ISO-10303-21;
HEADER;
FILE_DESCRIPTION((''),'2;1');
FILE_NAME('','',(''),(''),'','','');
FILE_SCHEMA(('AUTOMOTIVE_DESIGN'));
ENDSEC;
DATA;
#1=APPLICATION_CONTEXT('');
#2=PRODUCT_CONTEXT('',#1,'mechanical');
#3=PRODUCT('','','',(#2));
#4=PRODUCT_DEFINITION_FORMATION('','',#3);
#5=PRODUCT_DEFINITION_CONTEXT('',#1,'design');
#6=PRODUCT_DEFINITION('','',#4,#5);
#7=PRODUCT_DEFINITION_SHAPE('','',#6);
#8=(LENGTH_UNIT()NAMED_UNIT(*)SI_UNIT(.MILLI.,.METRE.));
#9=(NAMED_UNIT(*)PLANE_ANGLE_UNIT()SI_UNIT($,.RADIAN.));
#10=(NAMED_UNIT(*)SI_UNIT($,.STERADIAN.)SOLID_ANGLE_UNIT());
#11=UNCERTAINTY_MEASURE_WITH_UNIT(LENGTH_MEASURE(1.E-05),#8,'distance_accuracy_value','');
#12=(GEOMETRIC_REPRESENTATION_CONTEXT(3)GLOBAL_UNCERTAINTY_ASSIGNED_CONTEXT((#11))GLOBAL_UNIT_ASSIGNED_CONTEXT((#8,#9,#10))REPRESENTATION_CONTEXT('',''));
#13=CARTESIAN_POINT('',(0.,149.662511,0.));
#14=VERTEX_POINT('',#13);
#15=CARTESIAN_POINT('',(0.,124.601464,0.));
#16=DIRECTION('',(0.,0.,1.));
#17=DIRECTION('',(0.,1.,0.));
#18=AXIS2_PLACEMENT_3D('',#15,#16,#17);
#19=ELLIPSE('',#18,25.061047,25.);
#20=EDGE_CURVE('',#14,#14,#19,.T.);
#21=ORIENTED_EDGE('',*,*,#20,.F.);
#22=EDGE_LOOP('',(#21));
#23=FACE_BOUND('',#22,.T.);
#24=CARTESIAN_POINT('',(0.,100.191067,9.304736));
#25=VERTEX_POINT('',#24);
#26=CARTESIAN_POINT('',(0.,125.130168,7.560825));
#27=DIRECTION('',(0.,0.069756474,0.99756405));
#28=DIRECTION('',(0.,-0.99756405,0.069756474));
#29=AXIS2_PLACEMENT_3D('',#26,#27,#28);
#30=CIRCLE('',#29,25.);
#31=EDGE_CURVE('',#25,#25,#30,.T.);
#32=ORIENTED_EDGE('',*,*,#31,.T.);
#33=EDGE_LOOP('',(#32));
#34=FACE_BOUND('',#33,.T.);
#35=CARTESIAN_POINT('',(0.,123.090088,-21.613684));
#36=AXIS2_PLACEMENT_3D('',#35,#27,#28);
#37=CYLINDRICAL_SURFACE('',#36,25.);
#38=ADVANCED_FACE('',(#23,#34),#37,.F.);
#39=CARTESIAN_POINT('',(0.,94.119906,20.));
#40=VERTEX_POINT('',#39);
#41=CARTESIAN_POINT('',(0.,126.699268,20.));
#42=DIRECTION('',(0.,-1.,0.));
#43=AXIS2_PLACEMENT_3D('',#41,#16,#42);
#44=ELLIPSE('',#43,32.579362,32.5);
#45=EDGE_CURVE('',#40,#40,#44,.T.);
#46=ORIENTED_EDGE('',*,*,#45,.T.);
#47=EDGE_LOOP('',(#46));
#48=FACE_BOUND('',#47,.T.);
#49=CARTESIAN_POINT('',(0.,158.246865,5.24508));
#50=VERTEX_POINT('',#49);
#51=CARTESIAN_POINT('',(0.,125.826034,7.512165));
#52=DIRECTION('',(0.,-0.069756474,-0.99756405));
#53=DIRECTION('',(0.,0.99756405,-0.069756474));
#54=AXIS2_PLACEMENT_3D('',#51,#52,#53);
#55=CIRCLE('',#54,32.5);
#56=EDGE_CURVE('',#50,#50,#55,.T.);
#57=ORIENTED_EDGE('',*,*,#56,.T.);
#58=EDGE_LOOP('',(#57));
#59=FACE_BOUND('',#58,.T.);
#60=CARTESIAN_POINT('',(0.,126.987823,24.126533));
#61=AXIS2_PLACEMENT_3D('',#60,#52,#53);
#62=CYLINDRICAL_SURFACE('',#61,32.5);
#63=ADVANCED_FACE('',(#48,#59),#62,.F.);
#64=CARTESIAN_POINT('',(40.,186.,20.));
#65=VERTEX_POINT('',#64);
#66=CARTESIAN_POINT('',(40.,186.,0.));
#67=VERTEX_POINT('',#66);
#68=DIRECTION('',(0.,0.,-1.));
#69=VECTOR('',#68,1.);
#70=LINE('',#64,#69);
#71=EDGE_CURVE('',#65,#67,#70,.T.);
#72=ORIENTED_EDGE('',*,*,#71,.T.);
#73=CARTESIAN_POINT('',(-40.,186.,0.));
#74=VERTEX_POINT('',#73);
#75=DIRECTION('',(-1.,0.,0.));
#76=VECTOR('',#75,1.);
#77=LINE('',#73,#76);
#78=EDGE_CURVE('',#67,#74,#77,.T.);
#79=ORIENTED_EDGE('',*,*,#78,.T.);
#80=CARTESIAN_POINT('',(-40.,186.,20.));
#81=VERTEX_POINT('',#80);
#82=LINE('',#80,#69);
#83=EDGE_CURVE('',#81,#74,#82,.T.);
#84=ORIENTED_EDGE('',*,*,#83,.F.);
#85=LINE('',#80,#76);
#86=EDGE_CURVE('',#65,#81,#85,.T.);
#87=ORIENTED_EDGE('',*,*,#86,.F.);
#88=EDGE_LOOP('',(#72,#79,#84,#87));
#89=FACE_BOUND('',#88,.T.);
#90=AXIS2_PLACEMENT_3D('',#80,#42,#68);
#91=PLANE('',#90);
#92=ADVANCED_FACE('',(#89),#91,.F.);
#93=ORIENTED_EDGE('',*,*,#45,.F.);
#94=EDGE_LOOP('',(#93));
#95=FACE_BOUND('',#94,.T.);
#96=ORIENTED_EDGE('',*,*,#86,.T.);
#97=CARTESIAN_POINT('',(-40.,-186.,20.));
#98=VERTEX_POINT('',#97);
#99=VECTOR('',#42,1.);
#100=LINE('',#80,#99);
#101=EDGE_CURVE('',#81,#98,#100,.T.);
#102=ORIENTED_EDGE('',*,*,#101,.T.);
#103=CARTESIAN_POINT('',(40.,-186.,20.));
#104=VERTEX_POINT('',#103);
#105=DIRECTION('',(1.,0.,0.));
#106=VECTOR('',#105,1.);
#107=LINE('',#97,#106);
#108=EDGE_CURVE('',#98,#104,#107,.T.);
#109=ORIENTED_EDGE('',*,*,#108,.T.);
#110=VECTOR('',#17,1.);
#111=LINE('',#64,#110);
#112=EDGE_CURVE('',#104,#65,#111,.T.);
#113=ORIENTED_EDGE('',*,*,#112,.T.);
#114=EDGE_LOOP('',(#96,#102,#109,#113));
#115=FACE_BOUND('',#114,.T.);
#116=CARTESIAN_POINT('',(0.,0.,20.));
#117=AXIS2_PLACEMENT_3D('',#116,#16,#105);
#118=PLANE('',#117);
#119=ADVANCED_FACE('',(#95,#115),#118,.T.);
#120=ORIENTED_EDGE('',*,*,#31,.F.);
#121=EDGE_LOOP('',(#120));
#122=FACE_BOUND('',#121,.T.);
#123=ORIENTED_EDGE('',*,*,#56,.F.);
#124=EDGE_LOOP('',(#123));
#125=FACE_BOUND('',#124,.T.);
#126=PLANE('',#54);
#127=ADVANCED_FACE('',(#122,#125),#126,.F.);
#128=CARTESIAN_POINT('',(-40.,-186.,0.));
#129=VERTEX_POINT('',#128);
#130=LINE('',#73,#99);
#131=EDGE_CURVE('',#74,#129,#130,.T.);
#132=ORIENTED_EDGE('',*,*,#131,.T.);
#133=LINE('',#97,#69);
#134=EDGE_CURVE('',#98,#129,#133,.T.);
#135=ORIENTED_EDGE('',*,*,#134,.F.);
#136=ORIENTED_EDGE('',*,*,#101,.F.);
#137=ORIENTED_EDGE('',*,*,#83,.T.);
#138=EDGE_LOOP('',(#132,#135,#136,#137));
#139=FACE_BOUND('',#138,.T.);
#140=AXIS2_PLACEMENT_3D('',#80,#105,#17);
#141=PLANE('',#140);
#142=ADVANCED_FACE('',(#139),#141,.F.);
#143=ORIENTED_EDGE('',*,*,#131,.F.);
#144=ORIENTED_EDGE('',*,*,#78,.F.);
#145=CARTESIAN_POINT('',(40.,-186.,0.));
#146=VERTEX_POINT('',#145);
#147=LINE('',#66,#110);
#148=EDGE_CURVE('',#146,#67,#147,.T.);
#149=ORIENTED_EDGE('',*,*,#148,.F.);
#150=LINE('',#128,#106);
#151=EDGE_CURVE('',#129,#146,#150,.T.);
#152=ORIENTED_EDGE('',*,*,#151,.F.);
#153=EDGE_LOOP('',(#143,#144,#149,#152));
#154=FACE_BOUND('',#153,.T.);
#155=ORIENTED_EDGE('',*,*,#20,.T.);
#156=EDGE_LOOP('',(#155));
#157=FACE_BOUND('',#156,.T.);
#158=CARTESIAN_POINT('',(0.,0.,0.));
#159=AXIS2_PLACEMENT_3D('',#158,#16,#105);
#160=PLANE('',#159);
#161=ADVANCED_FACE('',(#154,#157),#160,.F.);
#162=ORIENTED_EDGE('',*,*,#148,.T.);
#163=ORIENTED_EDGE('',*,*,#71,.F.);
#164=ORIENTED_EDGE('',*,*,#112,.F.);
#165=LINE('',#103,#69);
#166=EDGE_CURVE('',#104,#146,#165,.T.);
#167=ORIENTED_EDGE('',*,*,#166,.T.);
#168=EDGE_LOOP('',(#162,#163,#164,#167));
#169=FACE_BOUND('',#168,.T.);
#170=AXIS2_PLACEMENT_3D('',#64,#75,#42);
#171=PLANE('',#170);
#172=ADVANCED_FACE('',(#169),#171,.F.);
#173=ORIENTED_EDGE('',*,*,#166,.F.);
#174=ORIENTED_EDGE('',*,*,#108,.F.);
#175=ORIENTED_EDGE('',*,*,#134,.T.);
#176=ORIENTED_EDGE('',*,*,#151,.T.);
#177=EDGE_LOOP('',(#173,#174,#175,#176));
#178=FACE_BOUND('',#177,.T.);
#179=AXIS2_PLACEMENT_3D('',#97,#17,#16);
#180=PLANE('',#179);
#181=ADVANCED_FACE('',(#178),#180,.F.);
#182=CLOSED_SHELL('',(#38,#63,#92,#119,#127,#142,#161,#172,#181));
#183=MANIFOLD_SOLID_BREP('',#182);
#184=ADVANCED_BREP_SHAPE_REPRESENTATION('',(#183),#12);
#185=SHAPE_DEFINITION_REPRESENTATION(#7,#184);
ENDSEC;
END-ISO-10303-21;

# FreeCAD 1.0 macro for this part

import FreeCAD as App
import Part
import Sketcher
from FreeCAD import Vector
Q = App.Units.Quantity


def add_polygon(sketch, points):
    """Adds a closed chain of lines whose ends are joined by coincident constraints."""
    first, n = sketch.GeometryCount, len(points)
    for a, b in zip(points, points[1:] + points[:1]):
        sketch.addGeometry(Part.LineSegment(App.Vector(*a, 0), App.Vector(*b, 0)), False)
    for i in range(n):
        sketch.addConstraint(Sketcher.Constraint("Coincident", first + i, 2, first + (i + 1) % n, 1))

doc = App.newDocument("Part")
params = doc.addObject("Spreadsheet::Sheet", "Params")
for row, (alias, value) in enumerate([
    ("sketch1_width", "80 mm"),
    ("sketch1_height", "372 mm"),
    ("pad1_length", "20 mm"),
    ("sketch2_diameter", "65 mm"),
    ("sketch3_diameter", "50 mm"),
], start=1):
    params.set(f"A{row}", alias)
    params.set(f"B{row}", "=" + value)
    params.setAlias(f"B{row}", alias)

body = doc.addObject("PartDesign::Body", "Body")

sketch1 = doc.addObject("Sketcher::SketchObject", "Sketch")
body.addObject(sketch1)
sketch1.AttachmentSupport = (doc.XY_Plane, [""])
sketch1.MapMode = "FlatFace"
add_polygon(sketch1, [(-40, 186), (-40, -186), (40, -186), (40, 186)])
sketch1.addConstraint([
    Sketcher.Constraint("Vertical", 0),
    Sketcher.Constraint("Horizontal", 1),
    Sketcher.Constraint("Vertical", 2),
    Sketcher.Constraint("Horizontal", 3),
    Sketcher.Constraint("Symmetric", 0, 2, 2, 2, -1, 1),
    Sketcher.Constraint("DistanceX", 1, 1, 1, 2, Q("80 mm")),
    Sketcher.Constraint("DistanceY", 0, 2, 0, 1, Q("372 mm")),
])
sketch1.setExpression("Constraints[9]", "Params.sketch1_width")
sketch1.setExpression("Constraints[10]", "Params.sketch1_height")
pad1 = doc.addObject("PartDesign::Pad", "Pad")
body.addObject(pad1)
pad1.Profile = sketch1
pad1.setExpression("Length", "Params.pad1_length")

sketch2 = doc.addObject("Sketcher::SketchObject", "Sketch001")
body.addObject(sketch2)
sketch2.Placement = App.Placement(Vector(0, 1.135011, 16.231411), App.Rotation(Vector(1, 0, 0), Vector(0, -0.99756405, 0.069756474), Vector(0, -0.069756474, -0.99756405), "ZXY"))
sketch2.addGeometry(Part.Circle(Vector(0, -125, 0), Vector(0, 0, 1), 32), False)
sketch2.addConstraint([
    Sketcher.Constraint("PointOnObject", 0, 3, -2),
    Sketcher.Constraint("Diameter", 0, Q("65 mm")),
    Sketcher.Constraint("DistanceY", 0, 3, -1, 1, Q("124.995506 mm")),
])
sketch2.setExpression("Constraints[1]", "Params.sketch2_diameter")
pocket1 = doc.addObject("PartDesign::Pocket", "Pocket")
body.addObject(pocket1)
pocket1.Profile = sketch2
pocket1.Type = "ThroughAll"

sketch3 = doc.addObject("Sketcher::SketchObject", "Sketch002")
body.addObject(sketch3)
sketch3.Placement = App.Placement(Vector(0, 1.135011, 16.231411), App.Rotation(Vector(1, 0, 0), Vector(0, 0.99756405, -0.069756474), Vector(0, 0.069756474, 0.99756405), "ZXY"))
sketch3.addGeometry(Part.Circle(Vector(0, 124, 0), Vector(0, 0, 1), 25), False)
sketch3.addConstraint([
    Sketcher.Constraint("PointOnObject", 0, 3, -2),
    Sketcher.Constraint("Diameter", 0, Q("50 mm")),
    Sketcher.Constraint("DistanceY", -1, 1, 0, 3, Q("124.297941 mm")),
])
sketch3.setExpression("Constraints[1]", "Params.sketch3_diameter")
pocket2 = doc.addObject("PartDesign::Pocket", "Pocket001")
body.addObject(pocket2)
pocket2.Profile = sketch3
pocket2.Type = "ThroughAll"

doc.recompute()
